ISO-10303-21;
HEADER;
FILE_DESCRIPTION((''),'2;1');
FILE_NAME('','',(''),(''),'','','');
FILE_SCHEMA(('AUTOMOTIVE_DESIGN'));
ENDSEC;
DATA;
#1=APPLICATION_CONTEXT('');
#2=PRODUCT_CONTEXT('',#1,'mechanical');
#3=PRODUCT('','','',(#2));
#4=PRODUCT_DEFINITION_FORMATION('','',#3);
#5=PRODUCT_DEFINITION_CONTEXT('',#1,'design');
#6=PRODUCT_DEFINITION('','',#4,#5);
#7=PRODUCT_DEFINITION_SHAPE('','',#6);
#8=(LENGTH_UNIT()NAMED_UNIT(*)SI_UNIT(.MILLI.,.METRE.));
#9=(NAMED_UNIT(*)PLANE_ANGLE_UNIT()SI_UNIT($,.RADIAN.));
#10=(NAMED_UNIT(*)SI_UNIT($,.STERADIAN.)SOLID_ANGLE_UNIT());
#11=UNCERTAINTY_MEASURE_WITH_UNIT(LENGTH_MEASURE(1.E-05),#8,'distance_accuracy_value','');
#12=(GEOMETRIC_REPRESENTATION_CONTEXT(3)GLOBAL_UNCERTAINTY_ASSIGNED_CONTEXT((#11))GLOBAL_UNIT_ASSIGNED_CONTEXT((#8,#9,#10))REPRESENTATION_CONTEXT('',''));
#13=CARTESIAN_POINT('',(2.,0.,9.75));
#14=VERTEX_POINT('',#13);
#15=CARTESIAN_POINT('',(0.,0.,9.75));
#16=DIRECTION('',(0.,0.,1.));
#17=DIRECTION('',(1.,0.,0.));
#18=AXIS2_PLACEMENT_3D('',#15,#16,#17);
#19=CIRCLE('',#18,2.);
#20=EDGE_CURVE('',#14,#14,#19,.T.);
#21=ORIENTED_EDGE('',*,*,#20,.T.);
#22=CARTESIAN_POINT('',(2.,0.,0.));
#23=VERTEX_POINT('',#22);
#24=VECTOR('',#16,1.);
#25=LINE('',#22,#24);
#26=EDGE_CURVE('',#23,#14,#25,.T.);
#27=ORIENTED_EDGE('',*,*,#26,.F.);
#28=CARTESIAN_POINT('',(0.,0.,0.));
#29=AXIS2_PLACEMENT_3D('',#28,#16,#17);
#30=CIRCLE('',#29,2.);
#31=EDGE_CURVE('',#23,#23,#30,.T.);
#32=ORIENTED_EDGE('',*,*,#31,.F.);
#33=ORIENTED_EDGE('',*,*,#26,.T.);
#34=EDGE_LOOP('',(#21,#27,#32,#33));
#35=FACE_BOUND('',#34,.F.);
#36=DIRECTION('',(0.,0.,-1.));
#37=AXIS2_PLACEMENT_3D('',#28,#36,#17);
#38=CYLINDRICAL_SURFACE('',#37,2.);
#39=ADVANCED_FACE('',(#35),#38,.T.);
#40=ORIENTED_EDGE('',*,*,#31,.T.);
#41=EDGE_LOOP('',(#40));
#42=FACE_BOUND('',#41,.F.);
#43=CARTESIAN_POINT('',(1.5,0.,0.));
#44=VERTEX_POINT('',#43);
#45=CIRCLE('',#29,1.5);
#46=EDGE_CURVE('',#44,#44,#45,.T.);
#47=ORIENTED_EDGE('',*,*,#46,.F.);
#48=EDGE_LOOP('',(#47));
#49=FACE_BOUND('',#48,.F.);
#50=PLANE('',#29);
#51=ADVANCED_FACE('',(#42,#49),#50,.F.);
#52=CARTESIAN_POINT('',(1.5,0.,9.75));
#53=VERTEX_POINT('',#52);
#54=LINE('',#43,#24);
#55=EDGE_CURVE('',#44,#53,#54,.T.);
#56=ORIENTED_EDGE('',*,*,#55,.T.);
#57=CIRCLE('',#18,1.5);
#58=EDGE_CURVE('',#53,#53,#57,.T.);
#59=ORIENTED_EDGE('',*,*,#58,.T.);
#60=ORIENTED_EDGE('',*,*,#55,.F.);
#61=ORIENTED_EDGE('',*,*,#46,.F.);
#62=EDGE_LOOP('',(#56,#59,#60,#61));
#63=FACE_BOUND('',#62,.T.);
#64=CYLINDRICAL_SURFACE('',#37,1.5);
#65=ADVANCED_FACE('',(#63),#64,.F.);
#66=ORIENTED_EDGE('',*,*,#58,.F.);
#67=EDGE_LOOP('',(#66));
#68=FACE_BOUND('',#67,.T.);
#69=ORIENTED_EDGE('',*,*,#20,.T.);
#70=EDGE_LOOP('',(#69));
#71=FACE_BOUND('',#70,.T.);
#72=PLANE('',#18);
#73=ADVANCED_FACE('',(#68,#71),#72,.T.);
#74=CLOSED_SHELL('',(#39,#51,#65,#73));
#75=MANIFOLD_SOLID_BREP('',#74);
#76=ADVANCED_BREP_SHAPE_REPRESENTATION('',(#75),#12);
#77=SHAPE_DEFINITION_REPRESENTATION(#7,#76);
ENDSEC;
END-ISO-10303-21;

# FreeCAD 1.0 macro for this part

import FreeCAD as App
import Part
import Sketcher

doc = App.newDocument("Part")
body = doc.addObject("PartDesign::Body", "Body")

# Sketch on XY plane
sketch1 = body.newObject("Sketcher::SketchObject", "Sketch")
sketch1.AttachmentSupport = (doc.getObject("XY_Plane"), [""])
sketch1.MapMode = "FlatFace"
sketch1.addGeometry([
    Part.Circle(App.Vector(0, 0, 0), App.Vector(0, 0, 1), 2),
    Part.Circle(App.Vector(0, 0, 0), App.Vector(0, 0, 1), 1.5),
], False)
sketch1.addConstraint([
    Sketcher.Constraint("Coincident", 0, 3, -1, 1),
    Sketcher.Constraint("Coincident", 1, 3, -1, 1),
    Sketcher.Constraint("Diameter", 0, 4.0),
    Sketcher.Constraint("Diameter", 1, 3.0),
])
pad1 = body.newObject("PartDesign::Pad", "Pad")
pad1.Profile = sketch1
pad1.Length = 9.75

doc.recompute()
